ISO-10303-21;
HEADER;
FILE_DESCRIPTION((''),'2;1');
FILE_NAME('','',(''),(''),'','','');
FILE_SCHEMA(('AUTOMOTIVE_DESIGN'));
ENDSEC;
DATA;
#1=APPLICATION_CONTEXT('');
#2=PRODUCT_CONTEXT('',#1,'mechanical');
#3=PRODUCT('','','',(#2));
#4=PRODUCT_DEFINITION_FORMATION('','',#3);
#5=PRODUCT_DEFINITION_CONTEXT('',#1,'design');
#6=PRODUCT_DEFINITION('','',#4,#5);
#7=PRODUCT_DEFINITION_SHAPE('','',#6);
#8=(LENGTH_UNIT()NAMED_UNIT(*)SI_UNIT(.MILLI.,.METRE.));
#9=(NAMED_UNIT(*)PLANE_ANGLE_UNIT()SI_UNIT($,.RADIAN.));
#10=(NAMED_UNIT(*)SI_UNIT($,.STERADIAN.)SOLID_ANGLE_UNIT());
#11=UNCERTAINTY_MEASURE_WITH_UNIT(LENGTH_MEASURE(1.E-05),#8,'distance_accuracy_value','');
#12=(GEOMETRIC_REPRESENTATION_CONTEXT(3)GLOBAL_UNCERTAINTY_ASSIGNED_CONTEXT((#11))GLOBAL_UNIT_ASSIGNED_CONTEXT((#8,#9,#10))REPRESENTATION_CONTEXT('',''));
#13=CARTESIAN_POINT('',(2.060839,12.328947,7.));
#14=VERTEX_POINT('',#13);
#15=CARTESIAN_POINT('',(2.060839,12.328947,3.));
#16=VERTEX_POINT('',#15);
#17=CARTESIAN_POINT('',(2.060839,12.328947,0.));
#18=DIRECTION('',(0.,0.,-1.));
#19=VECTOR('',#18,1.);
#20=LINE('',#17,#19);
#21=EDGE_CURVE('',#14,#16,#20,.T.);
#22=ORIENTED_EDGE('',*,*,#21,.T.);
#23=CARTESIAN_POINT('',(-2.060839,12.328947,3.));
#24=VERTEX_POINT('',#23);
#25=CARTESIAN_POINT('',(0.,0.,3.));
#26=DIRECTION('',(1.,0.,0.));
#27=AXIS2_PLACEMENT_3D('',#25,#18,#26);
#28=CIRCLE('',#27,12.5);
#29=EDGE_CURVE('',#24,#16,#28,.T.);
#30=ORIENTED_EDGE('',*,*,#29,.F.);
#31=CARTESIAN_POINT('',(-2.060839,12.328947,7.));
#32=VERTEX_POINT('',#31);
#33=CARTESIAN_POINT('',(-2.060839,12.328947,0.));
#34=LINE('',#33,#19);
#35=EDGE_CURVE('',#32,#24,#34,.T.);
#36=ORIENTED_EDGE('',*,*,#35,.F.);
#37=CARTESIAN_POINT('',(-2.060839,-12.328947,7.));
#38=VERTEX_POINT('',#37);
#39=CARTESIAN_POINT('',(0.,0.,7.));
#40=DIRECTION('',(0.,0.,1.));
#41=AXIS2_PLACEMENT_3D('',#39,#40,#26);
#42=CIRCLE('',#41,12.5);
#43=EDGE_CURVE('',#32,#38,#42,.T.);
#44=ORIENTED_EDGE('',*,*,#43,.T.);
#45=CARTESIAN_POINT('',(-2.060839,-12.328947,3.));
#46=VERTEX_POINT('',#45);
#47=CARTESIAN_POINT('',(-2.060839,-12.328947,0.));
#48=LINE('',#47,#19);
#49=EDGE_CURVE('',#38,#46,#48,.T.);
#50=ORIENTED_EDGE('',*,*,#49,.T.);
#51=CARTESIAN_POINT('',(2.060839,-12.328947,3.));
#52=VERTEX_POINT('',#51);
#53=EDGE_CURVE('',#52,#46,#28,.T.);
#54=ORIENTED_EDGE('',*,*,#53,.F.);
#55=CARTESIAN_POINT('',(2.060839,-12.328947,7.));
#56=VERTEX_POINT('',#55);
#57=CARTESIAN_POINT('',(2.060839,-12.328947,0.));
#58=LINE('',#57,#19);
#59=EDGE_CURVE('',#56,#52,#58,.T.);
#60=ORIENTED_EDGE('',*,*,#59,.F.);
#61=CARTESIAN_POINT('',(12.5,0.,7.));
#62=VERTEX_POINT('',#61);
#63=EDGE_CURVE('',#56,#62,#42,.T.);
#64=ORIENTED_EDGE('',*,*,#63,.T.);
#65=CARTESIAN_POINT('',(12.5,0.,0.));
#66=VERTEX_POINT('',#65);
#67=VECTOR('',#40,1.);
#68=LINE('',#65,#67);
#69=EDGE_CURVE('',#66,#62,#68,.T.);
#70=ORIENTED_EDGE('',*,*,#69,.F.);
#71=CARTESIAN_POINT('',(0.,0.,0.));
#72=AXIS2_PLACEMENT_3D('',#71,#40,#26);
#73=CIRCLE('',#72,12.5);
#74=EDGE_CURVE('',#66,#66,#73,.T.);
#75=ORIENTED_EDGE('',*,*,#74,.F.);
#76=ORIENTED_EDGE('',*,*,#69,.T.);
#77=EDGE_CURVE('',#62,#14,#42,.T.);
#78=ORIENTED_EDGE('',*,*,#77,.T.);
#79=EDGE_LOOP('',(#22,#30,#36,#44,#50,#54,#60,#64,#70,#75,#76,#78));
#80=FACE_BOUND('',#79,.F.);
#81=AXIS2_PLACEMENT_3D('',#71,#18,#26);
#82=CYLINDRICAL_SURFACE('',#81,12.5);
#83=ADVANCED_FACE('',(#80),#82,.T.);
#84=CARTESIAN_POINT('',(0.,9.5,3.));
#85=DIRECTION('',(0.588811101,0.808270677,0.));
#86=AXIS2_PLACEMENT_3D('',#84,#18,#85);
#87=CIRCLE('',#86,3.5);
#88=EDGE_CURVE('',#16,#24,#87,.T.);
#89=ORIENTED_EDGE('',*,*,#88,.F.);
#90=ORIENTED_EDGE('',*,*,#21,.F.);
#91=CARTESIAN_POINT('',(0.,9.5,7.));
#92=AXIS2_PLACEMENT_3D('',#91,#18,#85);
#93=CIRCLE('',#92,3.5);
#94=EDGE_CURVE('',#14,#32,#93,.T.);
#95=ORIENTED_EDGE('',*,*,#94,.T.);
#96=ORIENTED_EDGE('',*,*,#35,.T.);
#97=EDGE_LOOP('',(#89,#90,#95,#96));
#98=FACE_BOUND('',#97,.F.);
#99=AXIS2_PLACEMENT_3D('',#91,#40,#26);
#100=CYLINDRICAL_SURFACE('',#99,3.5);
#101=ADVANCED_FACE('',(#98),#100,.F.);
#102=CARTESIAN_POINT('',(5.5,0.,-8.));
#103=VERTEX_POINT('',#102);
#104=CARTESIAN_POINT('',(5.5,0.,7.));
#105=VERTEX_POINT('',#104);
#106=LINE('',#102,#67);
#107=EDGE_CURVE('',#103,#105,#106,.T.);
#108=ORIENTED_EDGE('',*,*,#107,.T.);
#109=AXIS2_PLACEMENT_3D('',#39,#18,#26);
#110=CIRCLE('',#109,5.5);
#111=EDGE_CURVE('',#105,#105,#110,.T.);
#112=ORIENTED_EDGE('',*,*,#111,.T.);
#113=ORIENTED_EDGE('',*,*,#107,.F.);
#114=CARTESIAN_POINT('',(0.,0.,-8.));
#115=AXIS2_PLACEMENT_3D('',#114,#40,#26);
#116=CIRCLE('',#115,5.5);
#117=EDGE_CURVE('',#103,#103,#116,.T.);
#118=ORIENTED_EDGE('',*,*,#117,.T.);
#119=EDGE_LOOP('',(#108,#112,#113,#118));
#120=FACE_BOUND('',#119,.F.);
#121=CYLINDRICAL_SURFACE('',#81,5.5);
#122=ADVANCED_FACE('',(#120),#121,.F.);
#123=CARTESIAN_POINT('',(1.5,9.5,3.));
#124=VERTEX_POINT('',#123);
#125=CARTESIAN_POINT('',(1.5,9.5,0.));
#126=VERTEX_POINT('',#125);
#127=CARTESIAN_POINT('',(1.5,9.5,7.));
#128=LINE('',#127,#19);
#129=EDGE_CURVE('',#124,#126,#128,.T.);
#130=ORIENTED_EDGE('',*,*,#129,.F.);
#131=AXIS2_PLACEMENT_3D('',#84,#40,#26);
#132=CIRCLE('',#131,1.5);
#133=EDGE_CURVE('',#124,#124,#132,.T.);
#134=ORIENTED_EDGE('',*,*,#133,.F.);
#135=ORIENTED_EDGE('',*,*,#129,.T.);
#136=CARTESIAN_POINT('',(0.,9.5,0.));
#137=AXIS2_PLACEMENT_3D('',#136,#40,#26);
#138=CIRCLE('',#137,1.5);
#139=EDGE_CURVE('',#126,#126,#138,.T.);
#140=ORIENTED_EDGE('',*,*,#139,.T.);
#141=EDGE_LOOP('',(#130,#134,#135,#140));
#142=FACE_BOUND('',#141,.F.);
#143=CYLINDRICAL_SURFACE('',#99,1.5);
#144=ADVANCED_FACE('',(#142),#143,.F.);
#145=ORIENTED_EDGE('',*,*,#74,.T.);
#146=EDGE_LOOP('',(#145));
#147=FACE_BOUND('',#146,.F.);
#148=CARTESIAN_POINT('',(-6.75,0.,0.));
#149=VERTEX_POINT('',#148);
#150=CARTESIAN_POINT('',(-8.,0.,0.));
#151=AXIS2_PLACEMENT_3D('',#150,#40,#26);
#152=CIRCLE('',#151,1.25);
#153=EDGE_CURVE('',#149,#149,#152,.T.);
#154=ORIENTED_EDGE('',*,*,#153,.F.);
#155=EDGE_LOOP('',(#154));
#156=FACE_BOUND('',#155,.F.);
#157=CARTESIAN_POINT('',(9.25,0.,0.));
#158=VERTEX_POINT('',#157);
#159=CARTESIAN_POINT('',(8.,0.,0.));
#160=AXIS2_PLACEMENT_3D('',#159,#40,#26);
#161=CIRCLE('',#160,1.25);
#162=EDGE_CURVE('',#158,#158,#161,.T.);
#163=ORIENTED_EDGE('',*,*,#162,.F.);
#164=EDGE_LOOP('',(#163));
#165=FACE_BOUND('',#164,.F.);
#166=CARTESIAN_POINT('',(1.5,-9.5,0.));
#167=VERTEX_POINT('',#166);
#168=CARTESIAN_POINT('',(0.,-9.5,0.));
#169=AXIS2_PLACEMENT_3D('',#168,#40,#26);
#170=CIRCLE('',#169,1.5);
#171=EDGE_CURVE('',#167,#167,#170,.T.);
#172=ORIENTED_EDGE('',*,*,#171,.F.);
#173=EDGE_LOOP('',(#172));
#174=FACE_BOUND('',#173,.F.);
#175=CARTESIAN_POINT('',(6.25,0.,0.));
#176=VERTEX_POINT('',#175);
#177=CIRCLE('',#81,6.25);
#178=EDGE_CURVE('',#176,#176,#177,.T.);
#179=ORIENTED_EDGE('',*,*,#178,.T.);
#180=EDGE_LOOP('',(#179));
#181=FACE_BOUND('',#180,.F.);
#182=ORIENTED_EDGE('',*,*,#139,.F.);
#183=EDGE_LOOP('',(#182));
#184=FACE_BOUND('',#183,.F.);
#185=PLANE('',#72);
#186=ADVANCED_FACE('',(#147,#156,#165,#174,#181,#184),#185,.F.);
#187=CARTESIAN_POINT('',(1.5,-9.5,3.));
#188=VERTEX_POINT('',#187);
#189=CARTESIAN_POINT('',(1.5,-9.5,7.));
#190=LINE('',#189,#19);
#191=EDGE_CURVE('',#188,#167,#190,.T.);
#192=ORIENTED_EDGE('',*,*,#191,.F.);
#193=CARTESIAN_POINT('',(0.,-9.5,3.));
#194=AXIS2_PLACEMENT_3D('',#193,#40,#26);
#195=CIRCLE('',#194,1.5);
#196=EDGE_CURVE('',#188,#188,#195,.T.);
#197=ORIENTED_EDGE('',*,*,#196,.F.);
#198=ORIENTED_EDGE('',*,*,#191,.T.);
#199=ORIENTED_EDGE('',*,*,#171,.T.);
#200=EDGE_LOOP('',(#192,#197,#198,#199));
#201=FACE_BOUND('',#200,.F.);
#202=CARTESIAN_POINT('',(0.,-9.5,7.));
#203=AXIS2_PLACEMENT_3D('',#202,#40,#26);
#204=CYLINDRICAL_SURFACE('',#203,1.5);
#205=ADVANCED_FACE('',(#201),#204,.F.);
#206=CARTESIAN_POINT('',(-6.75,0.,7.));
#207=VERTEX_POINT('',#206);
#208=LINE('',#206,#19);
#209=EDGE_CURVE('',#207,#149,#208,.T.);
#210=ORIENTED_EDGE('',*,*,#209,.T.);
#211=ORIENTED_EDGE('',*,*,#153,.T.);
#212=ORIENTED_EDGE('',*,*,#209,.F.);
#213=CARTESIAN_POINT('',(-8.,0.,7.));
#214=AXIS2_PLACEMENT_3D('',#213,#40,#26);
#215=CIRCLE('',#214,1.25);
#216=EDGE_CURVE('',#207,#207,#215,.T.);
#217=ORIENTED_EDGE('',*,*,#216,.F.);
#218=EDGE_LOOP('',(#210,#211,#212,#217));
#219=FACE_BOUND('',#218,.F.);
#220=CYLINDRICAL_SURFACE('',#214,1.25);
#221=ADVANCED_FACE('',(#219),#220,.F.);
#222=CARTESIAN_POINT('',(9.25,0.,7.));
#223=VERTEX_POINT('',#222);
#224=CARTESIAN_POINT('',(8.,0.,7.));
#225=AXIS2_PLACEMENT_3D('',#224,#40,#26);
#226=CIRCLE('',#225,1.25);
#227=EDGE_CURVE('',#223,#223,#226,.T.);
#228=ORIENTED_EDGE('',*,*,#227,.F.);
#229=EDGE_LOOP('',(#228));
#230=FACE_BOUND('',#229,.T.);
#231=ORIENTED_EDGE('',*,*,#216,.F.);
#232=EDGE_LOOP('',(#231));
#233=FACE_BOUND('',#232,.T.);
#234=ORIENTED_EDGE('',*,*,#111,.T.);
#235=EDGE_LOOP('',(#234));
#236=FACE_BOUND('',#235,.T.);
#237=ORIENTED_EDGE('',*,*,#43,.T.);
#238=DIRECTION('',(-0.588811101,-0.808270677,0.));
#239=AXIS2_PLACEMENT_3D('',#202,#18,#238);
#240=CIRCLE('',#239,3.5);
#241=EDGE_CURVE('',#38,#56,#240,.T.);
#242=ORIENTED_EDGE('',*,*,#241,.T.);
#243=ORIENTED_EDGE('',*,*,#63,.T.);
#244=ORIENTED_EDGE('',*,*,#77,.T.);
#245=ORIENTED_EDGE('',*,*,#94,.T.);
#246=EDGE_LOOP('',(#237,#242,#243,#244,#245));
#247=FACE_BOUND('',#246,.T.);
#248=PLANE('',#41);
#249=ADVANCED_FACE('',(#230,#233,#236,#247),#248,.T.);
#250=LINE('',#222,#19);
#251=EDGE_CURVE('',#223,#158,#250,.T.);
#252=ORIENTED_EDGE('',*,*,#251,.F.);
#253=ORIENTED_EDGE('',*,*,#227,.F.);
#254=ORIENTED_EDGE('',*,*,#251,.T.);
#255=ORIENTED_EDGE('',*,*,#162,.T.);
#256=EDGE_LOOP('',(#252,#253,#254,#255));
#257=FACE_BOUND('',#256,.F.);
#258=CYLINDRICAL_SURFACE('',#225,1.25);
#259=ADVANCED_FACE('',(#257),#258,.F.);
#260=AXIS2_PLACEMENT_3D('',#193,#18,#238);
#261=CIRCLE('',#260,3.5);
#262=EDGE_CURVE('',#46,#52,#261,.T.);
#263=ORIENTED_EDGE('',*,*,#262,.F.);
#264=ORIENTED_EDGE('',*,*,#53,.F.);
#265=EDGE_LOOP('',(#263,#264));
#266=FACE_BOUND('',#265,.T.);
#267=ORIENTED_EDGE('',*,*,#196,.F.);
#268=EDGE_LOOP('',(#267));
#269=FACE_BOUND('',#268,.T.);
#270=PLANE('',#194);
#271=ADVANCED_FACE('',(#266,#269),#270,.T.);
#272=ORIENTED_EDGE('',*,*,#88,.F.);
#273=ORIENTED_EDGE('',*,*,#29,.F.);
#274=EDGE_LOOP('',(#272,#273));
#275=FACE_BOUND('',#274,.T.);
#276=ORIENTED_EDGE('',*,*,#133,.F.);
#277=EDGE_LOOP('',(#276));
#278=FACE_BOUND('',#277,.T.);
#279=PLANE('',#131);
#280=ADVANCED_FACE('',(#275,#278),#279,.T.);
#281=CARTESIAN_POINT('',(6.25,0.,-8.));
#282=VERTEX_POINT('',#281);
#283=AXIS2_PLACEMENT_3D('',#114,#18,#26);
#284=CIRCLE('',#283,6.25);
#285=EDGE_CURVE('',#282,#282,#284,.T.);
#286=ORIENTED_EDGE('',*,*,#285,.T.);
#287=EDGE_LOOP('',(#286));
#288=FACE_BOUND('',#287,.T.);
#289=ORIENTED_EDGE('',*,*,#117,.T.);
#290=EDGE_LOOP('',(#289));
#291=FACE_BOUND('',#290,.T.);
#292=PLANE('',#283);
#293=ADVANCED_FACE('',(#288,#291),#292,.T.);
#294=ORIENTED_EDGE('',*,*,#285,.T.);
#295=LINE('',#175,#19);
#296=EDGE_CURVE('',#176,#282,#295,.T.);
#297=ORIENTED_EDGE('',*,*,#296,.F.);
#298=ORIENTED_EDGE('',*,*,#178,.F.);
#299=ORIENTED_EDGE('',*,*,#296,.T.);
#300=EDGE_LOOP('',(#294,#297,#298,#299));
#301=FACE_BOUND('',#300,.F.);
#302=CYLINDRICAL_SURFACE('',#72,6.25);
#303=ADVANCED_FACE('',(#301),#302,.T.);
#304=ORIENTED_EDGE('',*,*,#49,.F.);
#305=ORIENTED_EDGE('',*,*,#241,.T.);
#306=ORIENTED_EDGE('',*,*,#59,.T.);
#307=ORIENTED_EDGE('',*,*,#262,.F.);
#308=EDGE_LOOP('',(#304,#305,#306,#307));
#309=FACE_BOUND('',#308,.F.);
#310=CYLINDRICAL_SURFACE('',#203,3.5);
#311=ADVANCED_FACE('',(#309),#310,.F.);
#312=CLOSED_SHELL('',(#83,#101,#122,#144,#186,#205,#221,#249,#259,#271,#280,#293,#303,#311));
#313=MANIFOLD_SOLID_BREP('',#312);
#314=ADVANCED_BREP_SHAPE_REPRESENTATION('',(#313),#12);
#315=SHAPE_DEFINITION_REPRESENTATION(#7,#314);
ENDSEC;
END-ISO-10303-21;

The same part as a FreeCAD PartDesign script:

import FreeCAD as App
import Part
import Sketcher
from FreeCAD import Vector

doc = App.newDocument("Part")
body = doc.addObject("PartDesign::Body", "Body")

sketch1 = body.newObject("Sketcher::SketchObject", "Sketch")
sketch1.AttachmentSupport = (doc.getObject("XY_Plane"), [""])
sketch1.MapMode = "FlatFace"
sketch1.addGeometry(Part.Circle(Vector(0, 0, 0), Vector(0, 0, 1), 12.5), False)
sketch1.addConstraint([
    Sketcher.Constraint("Coincident", 0, 3, -1, 1),
    Sketcher.Constraint("Diameter", 0, 25.0),
])
pad1 = body.newObject("PartDesign::Pad", "Pad")
pad1.Profile = sketch1
pad1.Length = 7

sketch2 = body.newObject("Sketcher::SketchObject", "Sketch001")
sketch2.AttachmentSupport = (doc.getObject("XY_Plane"), [""])
sketch2.MapMode = "FlatFace"
sketch2.AttachmentOffset = App.Placement(Vector(0, 0, 7), App.Rotation())
sketch2.addGeometry([
    Part.Circle(Vector(0, 9.5, 0), Vector(0, 0, 1), 1.5),
    Part.Circle(Vector(0, -9.5, 0), Vector(0, 0, 1), 1.5),
], False)
sketch2.addConstraint([
    Sketcher.Constraint("Equal", 0, 1),
    Sketcher.Constraint("Symmetric", 0, 3, 1, 3, -1, 1),
    Sketcher.Constraint("PointOnObject", 0, 3, -2),
    Sketcher.Constraint("Diameter", 0, 3.0),
    Sketcher.Constraint("DistanceY", 1, 3, 0, 3, 19.0),
])
pocket1 = body.newObject("PartDesign::Pocket", "Pocket")
pocket1.Profile = sketch2
pocket1.Type = "ThroughAll"

sketch3 = body.newObject("Sketcher::SketchObject", "Sketch002")
sketch3.AttachmentSupport = (doc.getObject("XY_Plane"), [""])
sketch3.MapMode = "FlatFace"
sketch3.AttachmentOffset = App.Placement(Vector(0, 0, 7), App.Rotation())
sketch3.addGeometry([
    Part.Circle(Vector(0, 9.5, 0), Vector(0, 0, 1), 3.5),
    Part.Circle(Vector(0, -9.5, 0), Vector(0, 0, 1), 3.5),
], False)
sketch3.addConstraint([
    Sketcher.Constraint("Equal", 0, 1),
    Sketcher.Constraint("Symmetric", 0, 3, 1, 3, -1, 1),
    Sketcher.Constraint("PointOnObject", 0, 3, -2),
    Sketcher.Constraint("Diameter", 0, 7.0),
    Sketcher.Constraint("DistanceY", 1, 3, 0, 3, 19.0),
])
pocket2 = body.newObject("PartDesign::Pocket", "Pocket001")
pocket2.Profile = sketch3
pocket2.Length = 4

sketch4 = body.newObject("Sketcher::SketchObject", "Sketch003")
sketch4.AttachmentSupport = (doc.getObject("XY_Plane"), [""])
sketch4.MapMode = "FlatFace"
sketch4.addGeometry([
    Part.Circle(Vector(0, 0, 0), Vector(0, 0, 1), 6.25),
    Part.Circle(Vector(0, 0, 0), Vector(0, 0, 1), 5),
], False)
sketch4.addConstraint([
    Sketcher.Constraint("Coincident", 0, 3, -1, 1),
    Sketcher.Constraint("Coincident", 1, 3, -1, 1),
    Sketcher.Constraint("Diameter", 1, 10.0),
    Sketcher.Constraint("Diameter", 0, 12.5),
])
pad2 = body.newObject("PartDesign::Pad", "Pad001")
pad2.Profile = sketch4
pad2.Length = 8
pad2.Reversed = True

sketch5 = body.newObject("Sketcher::SketchObject", "Sketch004")
sketch5.AttachmentSupport = (doc.getObject("XY_Plane"), [""])
sketch5.MapMode = "FlatFace"
sketch5.addGeometry(Part.Circle(Vector(0, 0, 0), Vector(0, 0, 1), 5.5), False)
sketch5.addConstraint([
    Sketcher.Constraint("Coincident", 0, 3, -1, 1),
    Sketcher.Constraint("Diameter", 0, 11.0),
])
pocket3 = body.newObject("PartDesign::Pocket", "Pocket002")
pocket3.Profile = sketch5
pocket3.Type = "ThroughAll"
pocket3.Midplane = True

sketch6 = body.newObject("Sketcher::SketchObject", "Sketch005")
sketch6.AttachmentSupport = (doc.getObject("XY_Plane"), [""])
sketch6.MapMode = "FlatFace"
sketch6.AttachmentOffset = App.Placement(Vector(0, 0, 7), App.Rotation())
sketch6.addGeometry([
    Part.Circle(Vector(8, 0, 0), Vector(0, 0, 1), 1.25),
    Part.Circle(Vector(-8, 0, 0), Vector(0, 0, 1), 1.25),
], False)
sketch6.addConstraint([
    Sketcher.Constraint("Equal", 0, 1),
    Sketcher.Constraint("Symmetric", 0, 3, 1, 3, -1, 1),
    Sketcher.Constraint("PointOnObject", 0, 3, -1),
    Sketcher.Constraint("Diameter", 0, 2.5),
    Sketcher.Constraint("DistanceX", -1, 1, 0, 3, 8.0),
])
pocket4 = body.newObject("PartDesign::Pocket", "Pocket003")
pocket4.Profile = sketch6
pocket4.Type = "ThroughAll"

doc.recompute()
